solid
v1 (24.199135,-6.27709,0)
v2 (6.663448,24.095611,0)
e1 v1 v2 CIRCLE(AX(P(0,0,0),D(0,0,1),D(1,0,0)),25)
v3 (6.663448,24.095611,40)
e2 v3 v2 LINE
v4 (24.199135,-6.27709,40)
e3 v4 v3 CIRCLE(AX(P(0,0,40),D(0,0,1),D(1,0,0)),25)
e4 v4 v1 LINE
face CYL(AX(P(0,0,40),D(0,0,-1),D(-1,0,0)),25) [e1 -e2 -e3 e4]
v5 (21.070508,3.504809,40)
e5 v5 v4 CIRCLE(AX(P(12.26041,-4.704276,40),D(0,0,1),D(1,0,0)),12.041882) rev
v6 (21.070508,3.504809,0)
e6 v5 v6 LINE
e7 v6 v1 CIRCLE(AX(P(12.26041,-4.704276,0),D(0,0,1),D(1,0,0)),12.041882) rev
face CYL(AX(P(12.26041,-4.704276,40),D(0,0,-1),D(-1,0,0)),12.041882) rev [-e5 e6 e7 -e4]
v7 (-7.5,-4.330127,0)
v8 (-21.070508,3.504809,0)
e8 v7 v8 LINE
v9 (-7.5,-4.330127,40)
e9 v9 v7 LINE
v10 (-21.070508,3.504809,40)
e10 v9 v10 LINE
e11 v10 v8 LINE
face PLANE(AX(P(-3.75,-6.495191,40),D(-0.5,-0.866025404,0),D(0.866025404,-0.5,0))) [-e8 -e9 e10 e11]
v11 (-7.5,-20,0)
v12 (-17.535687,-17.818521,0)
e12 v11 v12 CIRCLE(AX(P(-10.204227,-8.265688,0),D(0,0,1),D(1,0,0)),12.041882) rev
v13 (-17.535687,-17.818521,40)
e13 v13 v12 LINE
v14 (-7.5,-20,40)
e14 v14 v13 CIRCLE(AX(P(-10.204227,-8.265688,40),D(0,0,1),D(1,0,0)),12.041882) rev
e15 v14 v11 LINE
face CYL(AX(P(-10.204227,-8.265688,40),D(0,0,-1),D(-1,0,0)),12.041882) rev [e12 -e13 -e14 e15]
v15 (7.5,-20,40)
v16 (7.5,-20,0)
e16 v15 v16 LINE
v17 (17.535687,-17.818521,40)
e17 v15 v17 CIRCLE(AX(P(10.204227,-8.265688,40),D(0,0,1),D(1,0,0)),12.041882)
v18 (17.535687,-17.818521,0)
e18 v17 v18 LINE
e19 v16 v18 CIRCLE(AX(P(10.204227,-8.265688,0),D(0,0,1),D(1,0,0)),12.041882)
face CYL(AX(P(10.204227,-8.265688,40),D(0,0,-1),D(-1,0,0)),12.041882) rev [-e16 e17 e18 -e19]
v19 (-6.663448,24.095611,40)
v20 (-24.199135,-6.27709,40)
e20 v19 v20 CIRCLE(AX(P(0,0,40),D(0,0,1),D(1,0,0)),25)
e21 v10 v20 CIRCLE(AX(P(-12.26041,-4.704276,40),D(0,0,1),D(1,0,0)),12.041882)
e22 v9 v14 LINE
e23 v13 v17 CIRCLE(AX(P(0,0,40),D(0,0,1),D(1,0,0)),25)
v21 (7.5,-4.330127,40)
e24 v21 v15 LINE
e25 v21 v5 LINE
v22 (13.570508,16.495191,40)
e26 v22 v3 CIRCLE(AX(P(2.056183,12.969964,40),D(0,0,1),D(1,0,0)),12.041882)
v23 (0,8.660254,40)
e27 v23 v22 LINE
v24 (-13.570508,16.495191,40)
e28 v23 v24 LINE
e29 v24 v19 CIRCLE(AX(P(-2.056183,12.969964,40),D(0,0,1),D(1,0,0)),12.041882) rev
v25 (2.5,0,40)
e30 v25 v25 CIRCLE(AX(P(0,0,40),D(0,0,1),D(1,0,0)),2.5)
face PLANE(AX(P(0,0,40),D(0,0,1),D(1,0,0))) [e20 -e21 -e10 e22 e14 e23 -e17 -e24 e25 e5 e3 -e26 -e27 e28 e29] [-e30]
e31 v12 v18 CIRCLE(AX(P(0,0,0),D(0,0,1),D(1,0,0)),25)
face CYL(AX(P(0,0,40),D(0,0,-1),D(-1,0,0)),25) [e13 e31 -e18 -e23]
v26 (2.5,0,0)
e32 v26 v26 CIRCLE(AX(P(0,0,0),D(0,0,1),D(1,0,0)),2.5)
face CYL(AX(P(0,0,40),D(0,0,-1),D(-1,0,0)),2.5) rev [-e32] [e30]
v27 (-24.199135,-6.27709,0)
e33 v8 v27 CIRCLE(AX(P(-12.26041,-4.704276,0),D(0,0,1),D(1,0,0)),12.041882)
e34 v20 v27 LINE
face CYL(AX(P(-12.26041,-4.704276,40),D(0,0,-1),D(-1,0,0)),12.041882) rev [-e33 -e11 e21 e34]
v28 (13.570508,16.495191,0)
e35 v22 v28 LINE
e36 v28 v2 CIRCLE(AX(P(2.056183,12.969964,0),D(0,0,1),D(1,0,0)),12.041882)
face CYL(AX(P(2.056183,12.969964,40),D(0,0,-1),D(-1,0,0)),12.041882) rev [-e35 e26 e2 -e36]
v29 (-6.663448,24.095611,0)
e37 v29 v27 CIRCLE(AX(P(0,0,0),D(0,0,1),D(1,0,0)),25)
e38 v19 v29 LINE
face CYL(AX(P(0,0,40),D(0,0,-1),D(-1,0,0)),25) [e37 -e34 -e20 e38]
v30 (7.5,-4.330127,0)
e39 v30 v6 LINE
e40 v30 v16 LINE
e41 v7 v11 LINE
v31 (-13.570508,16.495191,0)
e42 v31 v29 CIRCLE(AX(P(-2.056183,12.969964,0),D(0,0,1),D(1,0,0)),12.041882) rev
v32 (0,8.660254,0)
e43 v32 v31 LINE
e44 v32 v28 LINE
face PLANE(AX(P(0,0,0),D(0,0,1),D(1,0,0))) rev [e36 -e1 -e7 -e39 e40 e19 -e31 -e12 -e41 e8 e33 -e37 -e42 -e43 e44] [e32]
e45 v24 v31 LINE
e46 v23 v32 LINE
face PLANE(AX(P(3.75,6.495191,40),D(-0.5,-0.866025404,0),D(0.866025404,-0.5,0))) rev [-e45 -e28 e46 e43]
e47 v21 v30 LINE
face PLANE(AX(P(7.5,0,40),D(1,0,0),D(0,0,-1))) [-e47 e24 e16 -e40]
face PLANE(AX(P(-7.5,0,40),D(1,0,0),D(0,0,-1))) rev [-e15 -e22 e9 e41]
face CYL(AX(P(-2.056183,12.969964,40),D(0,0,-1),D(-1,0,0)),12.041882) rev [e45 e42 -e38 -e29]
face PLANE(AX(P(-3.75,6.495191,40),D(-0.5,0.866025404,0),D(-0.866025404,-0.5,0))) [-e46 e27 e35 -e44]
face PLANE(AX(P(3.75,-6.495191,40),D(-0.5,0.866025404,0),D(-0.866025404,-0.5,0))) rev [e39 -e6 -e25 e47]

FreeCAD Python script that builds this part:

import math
import FreeCAD as App
import Part
import Sketcher
from FreeCAD import Vector
Q = App.Units.Quantity

doc = App.newDocument("Part")
body = doc.addObject("PartDesign::Body", "Body")

sketch1 = body.newObject("Sketcher::SketchObject", "Sketch")
sketch1.AttachmentSupport = (doc.getObject("XY_Plane"), [""])
sketch1.MapMode = "FlatFace"
sketch1.addGeometry([
    Part.LineSegment(Vector(0, 8.660254, 0), Vector(-13.570508, 16.495191, 0)),
    Part.ArcOfCircle(Part.Circle(Vector(-2.056183, 12.969964, 0), Vector(0, 0, 1), 12.041882), math.radians(112.49504), math.radians(162.977504)),
    Part.ArcOfCircle(Part.Circle(Vector(0, 0, 0), Vector(0, 0, 1), 25), math.radians(105.458356), math.radians(194.541644)),
    Part.ArcOfCircle(Part.Circle(Vector(-12.26041, -4.704276, 0), Vector(0, 0, 1), 12.041882), math.radians(137.022496), math.radians(187.50496)),
    Part.LineSegment(Vector(-21.070508, 3.504809, 0), Vector(-7.5, -4.330127, 0)),
    Part.LineSegment(Vector(-7.5, -4.330127, 0), Vector(-7.5, -20, 0)),
    Part.ArcOfCircle(Part.Circle(Vector(-10.204227, -8.265688, 0), Vector(0, 0, 1), 12.041882), math.radians(-127.50496), math.radians(-77.022496)),
    Part.ArcOfCircle(Part.Circle(Vector(0, 0, 0), Vector(0, 0, 1), 25), math.radians(-134.541644), math.radians(-45.458356)),
    Part.ArcOfCircle(Part.Circle(Vector(10.204227, -8.265688, 0), Vector(0, 0, 1), 12.041882), math.radians(-102.977504), math.radians(-52.49504)),
    Part.LineSegment(Vector(7.5, -20, 0), Vector(7.5, -4.330127, 0)),
    Part.LineSegment(Vector(7.5, -4.330127, 0), Vector(21.070508, 3.504809, 0)),
    Part.ArcOfCircle(Part.Circle(Vector(12.26041, -4.704276, 0), Vector(0, 0, 1), 12.041882), math.radians(-7.50496), math.radians(42.977504)),
    Part.ArcOfCircle(Part.Circle(Vector(0, 0, 0), Vector(0, 0, 1), 25), math.radians(-14.541644), math.radians(74.541644)),
    Part.ArcOfCircle(Part.Circle(Vector(2.056183, 12.969964, 0), Vector(0, 0, 1), 12.041882), math.radians(17.022496), math.radians(67.50496)),
    Part.LineSegment(Vector(13.570508, 16.495191, 0), Vector(0, 8.660254, 0)),
    Part.Circle(Vector(0, 0, 0), Vector(0, 0, 1), 2.5),
], False)
sketch1.addConstraint([
    Sketcher.Constraint("Coincident", 0, 2, 1, 2),
    Sketcher.Constraint("Coincident", 1, 1, 2, 1),
    Sketcher.Constraint("Coincident", 2, 2, 3, 2),
    Sketcher.Constraint("Coincident", 3, 1, 4, 1),
    Sketcher.Constraint("Coincident", 4, 2, 5, 1),
    Sketcher.Constraint("Coincident", 5, 2, 6, 2),
    Sketcher.Constraint("Coincident", 6, 1, 7, 1),
    Sketcher.Constraint("Coincident", 7, 2, 8, 2),
    Sketcher.Constraint("Coincident", 8, 1, 9, 1),
    Sketcher.Constraint("Coincident", 9, 2, 10, 1),
    Sketcher.Constraint("Coincident", 10, 2, 11, 2),
    Sketcher.Constraint("Coincident", 11, 1, 12, 1),
    Sketcher.Constraint("Coincident", 12, 2, 13, 2),
    Sketcher.Constraint("Coincident", 13, 1, 14, 1),
    Sketcher.Constraint("Coincident", 14, 2, 0, 1),
    Sketcher.Constraint("Vertical", 5),
    Sketcher.Constraint("Vertical", 9),
    Sketcher.Constraint("Coincident", 2, 3, -1, 1),
    Sketcher.Constraint("Coincident", 7, 3, -1, 1),
    Sketcher.Constraint("Coincident", 12, 3, -1, 1),
    Sketcher.Constraint("Coincident", 15, 3, -1, 1),
    Sketcher.Constraint("Equal", 1, 3),
    Sketcher.Constraint("Equal", 3, 6),
    Sketcher.Constraint("Equal", 2, 7),
    Sketcher.Constraint("Equal", 6, 8),
    Sketcher.Constraint("Equal", 8, 11),
    Sketcher.Constraint("Equal", 7, 12),
    Sketcher.Constraint("Equal", 11, 13),
    Sketcher.Constraint("Symmetric", 6, 3, 8, 3, -2),
    Sketcher.Constraint("Symmetric", 3, 3, 11, 3, -2),
    Sketcher.Constraint("Symmetric", 1, 3, 13, 3, -2),
    Sketcher.Constraint("Symmetric", 4, 2, 9, 2, -2),
    Sketcher.Constraint("PointOnObject", 14, 2, -2),
    Sketcher.Constraint("Parallel", 0, 4),
    Sketcher.Constraint("Parallel", 10, 14),
    Sketcher.Constraint("Horizontal", 3, 1, 10, 2),
    Sketcher.Constraint("Equal", 0, 4),
    Sketcher.Constraint("Diameter", 15, Q("5 mm")),
    Sketcher.Constraint("Radius", 2, Q("25 mm")),
    Sketcher.Constraint("Angle", 0, Q("150 deg")),
    Sketcher.Constraint("DistanceY", 5, 2, -1, 1, Q("20 mm")),
    Sketcher.Constraint("DistanceX", 5, 2, 8, 1, Q("15 mm")),
    Sketcher.Constraint("Radius", 1, Q("12.041882 mm")),
    Sketcher.Constraint("DistanceX", 0, 2, 3, 3, Q("1.310099 mm")),
    Sketcher.Constraint("DistanceY", 6, 3, 2, 2, Q("1.988598 mm")),
    Sketcher.Constraint("DistanceY", 2, 2, 3, 1, Q("9.7819 mm")),
    Sketcher.Constraint("DistanceY", 5, 2, 5, 1, Q("15.669873 mm")),
    Sketcher.Constraint("DistanceY", -1, 1, 0, 2, Q("16.495191 mm")),
    Sketcher.Constraint("DistanceX", 1, 1, -1, 1, Q("6.663448 mm")),
])
pad1 = body.newObject("PartDesign::Pad", "Pad")
pad1.Profile = sketch1
pad1.Length = 40

doc.recompute()
